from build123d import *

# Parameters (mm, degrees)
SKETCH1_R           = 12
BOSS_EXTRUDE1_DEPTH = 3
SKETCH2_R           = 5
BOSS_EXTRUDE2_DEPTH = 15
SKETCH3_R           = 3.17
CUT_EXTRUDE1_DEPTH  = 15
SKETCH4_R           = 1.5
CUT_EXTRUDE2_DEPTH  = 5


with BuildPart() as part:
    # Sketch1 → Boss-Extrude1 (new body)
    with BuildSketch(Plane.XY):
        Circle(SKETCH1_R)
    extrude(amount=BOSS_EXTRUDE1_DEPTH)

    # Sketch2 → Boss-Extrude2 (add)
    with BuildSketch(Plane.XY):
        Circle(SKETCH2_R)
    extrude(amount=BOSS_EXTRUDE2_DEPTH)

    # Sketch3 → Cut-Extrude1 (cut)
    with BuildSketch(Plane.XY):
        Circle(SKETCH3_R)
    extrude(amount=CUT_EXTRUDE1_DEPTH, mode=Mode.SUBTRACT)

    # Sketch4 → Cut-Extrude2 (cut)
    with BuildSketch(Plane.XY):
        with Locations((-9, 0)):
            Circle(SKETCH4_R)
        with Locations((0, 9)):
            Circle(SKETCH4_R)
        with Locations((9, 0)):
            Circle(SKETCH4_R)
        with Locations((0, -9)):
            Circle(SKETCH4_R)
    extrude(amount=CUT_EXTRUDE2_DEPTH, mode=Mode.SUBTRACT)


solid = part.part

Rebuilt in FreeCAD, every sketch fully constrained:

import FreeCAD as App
import Part
import Sketcher

V = App.Vector

doc = App.newDocument("Part")
body = doc.addObject("PartDesign::Body", "Body")

sketch1 = doc.addObject("Sketcher::SketchObject", "Sketch")
body.addObject(sketch1)
sketch1.AttachmentSupport = (doc.XY_Plane, [""])
sketch1.MapMode = "FlatFace"
sketch1.addGeometry(Part.Circle(V(0, 0, 0), V(0, 0, 1), 12), False)
sketch1.addConstraint([
    Sketcher.Constraint("Coincident", 0, 3, -1, 1),
    Sketcher.Constraint("Diameter", 0, 24.0),
])
pad1 = doc.addObject("PartDesign::Pad", "Pad")
body.addObject(pad1)
pad1.Profile = sketch1
pad1.Length = 3

sketch2 = doc.addObject("Sketcher::SketchObject", "Sketch001")
body.addObject(sketch2)
sketch2.AttachmentSupport = (doc.XY_Plane, [""])
sketch2.MapMode = "FlatFace"
sketch2.addGeometry(Part.Circle(V(0, 0, 0), V(0, 0, 1), 5), False)
sketch2.addConstraint([
    Sketcher.Constraint("Coincident", 0, 3, -1, 1),
    Sketcher.Constraint("Diameter", 0, 10.0),
])
pad2 = doc.addObject("PartDesign::Pad", "Pad001")
body.addObject(pad2)
pad2.Profile = sketch2
pad2.Length = 15

sketch3 = doc.addObject("Sketcher::SketchObject", "Sketch002")
body.addObject(sketch3)
sketch3.AttachmentSupport = (doc.XY_Plane, [""])
sketch3.MapMode = "FlatFace"
sketch3.addGeometry(Part.Circle(V(0, 0, 0), V(0, 0, 1), 3.17), False)
sketch3.addConstraint([
    Sketcher.Constraint("Coincident", 0, 3, -1, 1),
    Sketcher.Constraint("Diameter", 0, 6.34),
])
pocket1 = doc.addObject("PartDesign::Pocket", "Pocket")
body.addObject(pocket1)
pocket1.Profile = sketch3
pocket1.Length = 15
pocket1.Reversed = True

sketch4 = doc.addObject("Sketcher::SketchObject", "Sketch003")
body.addObject(sketch4)
sketch4.AttachmentSupport = (doc.XY_Plane, [""])
sketch4.MapMode = "FlatFace"
sketch4.addGeometry([
    Part.Circle(V(-9, 0, 0), V(0, 0, 1), 1.5),
    Part.Circle(V(0, 9, 0), V(0, 0, 1), 1.5),
    Part.Circle(V(9, 0, 0), V(0, 0, 1), 1.5),
    Part.Circle(V(0, -9, 0), V(0, 0, 1), 1.5),
], False)
sketch4.addConstraint([
    Sketcher.Constraint("Equal", 0, 1),
    Sketcher.Constraint("Equal", 1, 2),
    Sketcher.Constraint("Equal", 2, 3),
    Sketcher.Constraint("Symmetric", 0, 3, 2, 3, -1, 1),
    Sketcher.Constraint("Symmetric", 1, 3, 3, 3, -1, 1),
    Sketcher.Constraint("PointOnObject", 0, 3, -1),
    Sketcher.Constraint("PointOnObject", 1, 3, -2),
    Sketcher.Constraint("Diameter", 0, 3.0),
    Sketcher.Constraint("DistanceX", 0, 3, -1, 1, 9.0),
    Sketcher.Constraint("DistanceY", -1, 1, 1, 3, 9.0),
])
pocket2 = doc.addObject("PartDesign::Pocket", "Pocket001")
body.addObject(pocket2)
pocket2.Profile = sketch4
pocket2.Length = 5
pocket2.Reversed = True

doc.recompute()
